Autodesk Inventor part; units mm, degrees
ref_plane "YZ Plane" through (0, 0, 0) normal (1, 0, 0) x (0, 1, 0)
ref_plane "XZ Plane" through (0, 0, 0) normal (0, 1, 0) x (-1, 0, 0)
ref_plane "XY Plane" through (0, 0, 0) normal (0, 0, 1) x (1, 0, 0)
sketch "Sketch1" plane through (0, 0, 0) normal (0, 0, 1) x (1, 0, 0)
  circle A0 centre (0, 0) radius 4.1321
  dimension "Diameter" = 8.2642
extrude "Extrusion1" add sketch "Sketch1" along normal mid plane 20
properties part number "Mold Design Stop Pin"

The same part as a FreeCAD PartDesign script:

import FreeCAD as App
import Part
import Sketcher
Q = App.Units.Quantity

doc = App.newDocument("Part")
body = doc.addObject("PartDesign::Body", "Body")

sketch1 = body.newObject("Sketcher::SketchObject", "Sketch")
sketch1.AttachmentSupport = (doc.getObject("XY_Plane"), [""])
sketch1.MapMode = "FlatFace"
sketch1.addGeometry(Part.Circle(App.Vector(0, 0, 0), App.Vector(0, 0, 1), 4.1321), False)
sketch1.addConstraint([
    Sketcher.Constraint("Coincident", 0, 3, -1, 1),
    Sketcher.Constraint("Diameter", 0, Q("8.2642 mm")),
])
pad1 = body.newObject("PartDesign::Pad", "Pad")
pad1.Profile = sketch1
pad1.Length = 20
pad1.Midplane = True

doc.recompute()
